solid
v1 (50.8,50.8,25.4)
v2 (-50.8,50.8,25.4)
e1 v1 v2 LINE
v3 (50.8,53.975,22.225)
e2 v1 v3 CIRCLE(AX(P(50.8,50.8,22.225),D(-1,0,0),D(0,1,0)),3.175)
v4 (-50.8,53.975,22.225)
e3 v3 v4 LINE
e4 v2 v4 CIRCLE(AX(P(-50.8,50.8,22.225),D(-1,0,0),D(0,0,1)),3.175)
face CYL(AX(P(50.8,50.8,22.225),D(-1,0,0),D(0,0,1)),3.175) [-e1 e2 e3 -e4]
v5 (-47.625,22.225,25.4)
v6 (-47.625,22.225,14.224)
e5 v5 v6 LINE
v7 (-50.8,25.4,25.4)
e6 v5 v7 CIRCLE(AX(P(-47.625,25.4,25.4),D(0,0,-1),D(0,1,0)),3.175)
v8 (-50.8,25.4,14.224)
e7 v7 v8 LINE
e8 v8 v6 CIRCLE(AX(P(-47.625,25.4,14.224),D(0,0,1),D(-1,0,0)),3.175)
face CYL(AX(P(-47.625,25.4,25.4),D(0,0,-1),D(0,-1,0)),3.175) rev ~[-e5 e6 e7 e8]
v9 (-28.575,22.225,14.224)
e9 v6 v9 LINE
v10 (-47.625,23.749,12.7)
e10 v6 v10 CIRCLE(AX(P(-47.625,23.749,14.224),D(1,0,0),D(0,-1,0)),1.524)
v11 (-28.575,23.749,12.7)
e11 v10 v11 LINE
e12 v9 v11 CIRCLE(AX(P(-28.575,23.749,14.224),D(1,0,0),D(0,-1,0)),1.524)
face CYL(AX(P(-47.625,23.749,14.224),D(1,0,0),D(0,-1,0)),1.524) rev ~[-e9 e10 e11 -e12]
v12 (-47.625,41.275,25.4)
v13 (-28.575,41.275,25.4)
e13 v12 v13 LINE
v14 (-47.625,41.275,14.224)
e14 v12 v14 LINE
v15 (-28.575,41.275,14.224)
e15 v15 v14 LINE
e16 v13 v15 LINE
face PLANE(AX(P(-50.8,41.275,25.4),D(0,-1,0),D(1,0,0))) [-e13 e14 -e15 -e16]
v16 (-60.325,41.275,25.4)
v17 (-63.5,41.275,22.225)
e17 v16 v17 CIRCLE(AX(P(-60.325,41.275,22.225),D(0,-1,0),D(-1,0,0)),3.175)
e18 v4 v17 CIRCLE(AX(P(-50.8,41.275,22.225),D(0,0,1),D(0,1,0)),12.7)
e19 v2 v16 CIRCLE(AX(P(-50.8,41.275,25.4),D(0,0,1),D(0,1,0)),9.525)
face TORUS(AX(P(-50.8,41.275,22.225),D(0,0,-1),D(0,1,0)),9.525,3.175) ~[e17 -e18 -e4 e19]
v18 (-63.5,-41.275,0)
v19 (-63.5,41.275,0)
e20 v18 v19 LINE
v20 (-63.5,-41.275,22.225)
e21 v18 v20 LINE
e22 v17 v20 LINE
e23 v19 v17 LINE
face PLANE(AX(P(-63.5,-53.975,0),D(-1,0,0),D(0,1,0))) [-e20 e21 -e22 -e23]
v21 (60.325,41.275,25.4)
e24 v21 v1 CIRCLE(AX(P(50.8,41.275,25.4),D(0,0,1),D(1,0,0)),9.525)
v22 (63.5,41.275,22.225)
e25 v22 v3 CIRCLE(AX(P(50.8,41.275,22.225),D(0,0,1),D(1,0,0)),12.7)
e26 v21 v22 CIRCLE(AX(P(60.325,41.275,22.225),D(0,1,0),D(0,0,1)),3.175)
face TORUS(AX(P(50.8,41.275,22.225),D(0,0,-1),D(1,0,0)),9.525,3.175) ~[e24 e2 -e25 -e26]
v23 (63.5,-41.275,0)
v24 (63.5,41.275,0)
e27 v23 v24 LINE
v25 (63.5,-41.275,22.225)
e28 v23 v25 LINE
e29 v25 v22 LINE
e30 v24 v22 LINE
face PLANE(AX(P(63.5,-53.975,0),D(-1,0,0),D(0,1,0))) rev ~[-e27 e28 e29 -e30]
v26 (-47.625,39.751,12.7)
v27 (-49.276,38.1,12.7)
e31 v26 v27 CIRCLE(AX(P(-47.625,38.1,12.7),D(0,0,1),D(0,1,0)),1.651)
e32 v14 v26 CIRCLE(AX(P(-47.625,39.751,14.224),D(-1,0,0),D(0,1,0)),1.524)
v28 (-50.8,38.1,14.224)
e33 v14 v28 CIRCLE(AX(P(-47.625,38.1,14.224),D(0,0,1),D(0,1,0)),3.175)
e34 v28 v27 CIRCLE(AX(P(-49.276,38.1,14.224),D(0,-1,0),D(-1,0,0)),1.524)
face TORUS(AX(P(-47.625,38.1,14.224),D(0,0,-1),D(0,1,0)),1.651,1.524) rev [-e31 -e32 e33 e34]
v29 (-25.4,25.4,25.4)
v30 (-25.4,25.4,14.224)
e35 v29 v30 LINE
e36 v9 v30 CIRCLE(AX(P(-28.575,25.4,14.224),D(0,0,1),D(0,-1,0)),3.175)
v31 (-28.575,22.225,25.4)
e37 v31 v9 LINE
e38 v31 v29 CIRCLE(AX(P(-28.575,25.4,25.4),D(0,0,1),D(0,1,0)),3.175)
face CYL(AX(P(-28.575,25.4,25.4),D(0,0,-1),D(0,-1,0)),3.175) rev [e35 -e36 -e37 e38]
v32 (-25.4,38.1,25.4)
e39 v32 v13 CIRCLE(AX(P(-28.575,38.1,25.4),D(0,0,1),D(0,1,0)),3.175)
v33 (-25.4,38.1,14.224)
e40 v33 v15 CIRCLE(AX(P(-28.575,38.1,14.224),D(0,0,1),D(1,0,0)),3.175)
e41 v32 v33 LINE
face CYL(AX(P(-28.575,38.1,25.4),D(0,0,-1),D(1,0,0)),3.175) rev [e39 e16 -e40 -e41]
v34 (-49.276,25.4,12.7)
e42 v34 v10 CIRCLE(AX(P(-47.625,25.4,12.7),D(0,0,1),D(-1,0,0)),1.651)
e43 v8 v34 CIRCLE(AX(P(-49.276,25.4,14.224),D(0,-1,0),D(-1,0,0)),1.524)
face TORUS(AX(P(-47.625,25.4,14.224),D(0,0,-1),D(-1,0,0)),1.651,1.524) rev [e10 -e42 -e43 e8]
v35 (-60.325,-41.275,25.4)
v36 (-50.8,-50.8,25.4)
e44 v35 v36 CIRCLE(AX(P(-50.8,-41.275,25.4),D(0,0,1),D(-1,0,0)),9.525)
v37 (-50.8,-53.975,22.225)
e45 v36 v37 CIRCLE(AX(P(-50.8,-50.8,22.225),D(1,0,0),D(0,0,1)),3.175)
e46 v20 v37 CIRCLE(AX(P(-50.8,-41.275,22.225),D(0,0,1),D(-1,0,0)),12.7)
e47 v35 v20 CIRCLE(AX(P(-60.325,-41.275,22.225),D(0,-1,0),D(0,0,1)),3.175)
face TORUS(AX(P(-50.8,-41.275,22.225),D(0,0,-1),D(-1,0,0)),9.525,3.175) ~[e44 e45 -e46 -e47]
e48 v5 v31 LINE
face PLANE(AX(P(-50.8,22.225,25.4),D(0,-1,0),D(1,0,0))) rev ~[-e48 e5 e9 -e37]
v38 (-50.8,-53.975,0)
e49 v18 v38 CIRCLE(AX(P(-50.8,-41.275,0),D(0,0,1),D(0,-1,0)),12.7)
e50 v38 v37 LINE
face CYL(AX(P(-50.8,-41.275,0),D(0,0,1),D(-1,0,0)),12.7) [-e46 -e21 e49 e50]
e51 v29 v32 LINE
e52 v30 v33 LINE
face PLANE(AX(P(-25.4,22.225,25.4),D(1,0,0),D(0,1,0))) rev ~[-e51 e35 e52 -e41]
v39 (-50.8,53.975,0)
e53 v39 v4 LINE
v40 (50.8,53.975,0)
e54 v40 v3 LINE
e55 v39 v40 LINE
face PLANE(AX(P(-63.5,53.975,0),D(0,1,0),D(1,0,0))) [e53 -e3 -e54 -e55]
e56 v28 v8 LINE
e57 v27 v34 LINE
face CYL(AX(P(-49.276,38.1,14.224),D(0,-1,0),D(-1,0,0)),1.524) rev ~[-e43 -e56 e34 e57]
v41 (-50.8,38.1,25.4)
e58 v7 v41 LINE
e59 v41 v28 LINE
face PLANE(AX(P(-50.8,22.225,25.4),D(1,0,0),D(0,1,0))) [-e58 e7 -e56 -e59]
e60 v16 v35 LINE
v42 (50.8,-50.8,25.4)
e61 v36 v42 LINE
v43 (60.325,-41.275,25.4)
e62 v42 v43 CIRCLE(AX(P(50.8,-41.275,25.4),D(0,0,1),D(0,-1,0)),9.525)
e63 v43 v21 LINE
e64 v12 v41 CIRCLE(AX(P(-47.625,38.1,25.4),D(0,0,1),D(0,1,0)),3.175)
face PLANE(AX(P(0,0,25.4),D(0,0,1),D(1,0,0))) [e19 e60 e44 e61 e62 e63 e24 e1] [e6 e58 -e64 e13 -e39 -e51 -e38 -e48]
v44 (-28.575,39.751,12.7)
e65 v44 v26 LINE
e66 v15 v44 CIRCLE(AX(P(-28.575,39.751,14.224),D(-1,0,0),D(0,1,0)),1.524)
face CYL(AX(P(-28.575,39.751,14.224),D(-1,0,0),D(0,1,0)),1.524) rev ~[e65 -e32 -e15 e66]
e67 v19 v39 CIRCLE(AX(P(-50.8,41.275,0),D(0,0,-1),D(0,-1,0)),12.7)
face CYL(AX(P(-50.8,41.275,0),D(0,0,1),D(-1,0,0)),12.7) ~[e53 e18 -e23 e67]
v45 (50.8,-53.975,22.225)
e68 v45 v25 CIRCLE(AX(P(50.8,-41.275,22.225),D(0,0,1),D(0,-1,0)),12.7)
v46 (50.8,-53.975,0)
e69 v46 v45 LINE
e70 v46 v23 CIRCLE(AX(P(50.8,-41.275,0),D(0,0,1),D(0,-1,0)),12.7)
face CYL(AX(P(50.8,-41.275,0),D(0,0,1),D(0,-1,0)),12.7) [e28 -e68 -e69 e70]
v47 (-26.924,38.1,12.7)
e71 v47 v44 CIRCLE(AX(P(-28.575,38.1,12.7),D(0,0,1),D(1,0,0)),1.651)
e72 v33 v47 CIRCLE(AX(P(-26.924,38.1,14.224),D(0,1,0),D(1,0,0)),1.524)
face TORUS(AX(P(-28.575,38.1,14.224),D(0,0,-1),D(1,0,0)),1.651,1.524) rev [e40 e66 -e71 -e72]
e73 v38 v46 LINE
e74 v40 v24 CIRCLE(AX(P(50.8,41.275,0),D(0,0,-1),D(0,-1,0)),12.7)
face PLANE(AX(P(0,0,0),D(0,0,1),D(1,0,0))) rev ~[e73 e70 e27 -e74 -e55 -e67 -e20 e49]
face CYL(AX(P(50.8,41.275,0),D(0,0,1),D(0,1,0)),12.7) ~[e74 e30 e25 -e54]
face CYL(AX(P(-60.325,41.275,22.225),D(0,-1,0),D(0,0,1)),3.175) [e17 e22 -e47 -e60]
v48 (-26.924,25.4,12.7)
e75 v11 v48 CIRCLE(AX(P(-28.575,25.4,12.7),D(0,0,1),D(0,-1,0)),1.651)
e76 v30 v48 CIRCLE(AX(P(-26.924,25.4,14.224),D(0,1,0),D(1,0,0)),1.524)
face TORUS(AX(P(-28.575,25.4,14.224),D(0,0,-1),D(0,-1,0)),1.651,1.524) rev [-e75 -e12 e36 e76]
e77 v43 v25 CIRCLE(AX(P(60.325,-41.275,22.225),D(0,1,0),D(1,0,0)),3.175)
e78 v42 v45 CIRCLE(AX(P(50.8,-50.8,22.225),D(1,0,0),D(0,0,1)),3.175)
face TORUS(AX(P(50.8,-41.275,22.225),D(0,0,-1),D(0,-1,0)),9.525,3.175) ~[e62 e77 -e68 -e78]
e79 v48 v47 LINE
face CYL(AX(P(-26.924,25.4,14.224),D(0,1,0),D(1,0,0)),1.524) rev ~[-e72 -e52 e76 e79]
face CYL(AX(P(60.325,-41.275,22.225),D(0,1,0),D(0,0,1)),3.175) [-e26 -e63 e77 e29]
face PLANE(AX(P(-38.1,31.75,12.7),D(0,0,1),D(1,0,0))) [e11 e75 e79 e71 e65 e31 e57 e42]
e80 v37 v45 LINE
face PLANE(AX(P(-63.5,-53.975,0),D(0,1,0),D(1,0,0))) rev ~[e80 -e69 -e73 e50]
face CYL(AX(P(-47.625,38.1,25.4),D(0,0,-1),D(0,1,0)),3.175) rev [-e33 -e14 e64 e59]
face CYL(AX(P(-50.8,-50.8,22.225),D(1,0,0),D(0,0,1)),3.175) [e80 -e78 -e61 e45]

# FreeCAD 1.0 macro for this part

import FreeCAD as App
import Part
import Sketcher
from FreeCAD import Vector
Q = App.Units.Quantity


def edges_at(feature, points):
    """Names of the edges that pass closest to the given points."""
    edges = feature.Shape.Edges
    near = lambda p: min(range(len(edges)), key=lambda i: edges[i].distToShape(Part.Vertex(*p))[0])
    return sorted({f"Edge{near(p) + 1}" for p in points})

doc = App.newDocument("Part")
body = doc.addObject("PartDesign::Body", "Body")

# Sketch on XY plane
sketch1 = doc.addObject("Sketcher::SketchObject", "Sketch")
body.addObject(sketch1)
sketch1.AttachmentSupport = (doc.XY_Plane, [""])
sketch1.MapMode = "FlatFace"
sketch1.addGeometry([
    Part.LineSegment(Vector(-64, 54, 0), Vector(-64, -54, 0)),
    Part.LineSegment(Vector(-64, -54, 0), Vector(64, -54, 0)),
    Part.LineSegment(Vector(64, -54, 0), Vector(64, 54, 0)),
    Part.LineSegment(Vector(64, 54, 0), Vector(-64, 54, 0)),
], False)
sketch1.addConstraint([
    Sketcher.Constraint("Coincident", 0, 2, 1, 1),
    Sketcher.Constraint("Coincident", 1, 2, 2, 1),
    Sketcher.Constraint("Coincident", 2, 2, 3, 1),
    Sketcher.Constraint("Coincident", 3, 2, 0, 1),
    Sketcher.Constraint("Vertical", 0),
    Sketcher.Constraint("Horizontal", 1),
    Sketcher.Constraint("Vertical", 2),
    Sketcher.Constraint("Horizontal", 3),
    Sketcher.Constraint("Symmetric", 0, 2, 2, 2, -1, 1),
    Sketcher.Constraint("DistanceX", 1, 1, 1, 2, Q("5 in")),
    Sketcher.Constraint("DistanceY", 0, 2, 0, 1, Q("4.25 in")),
])
pad1 = doc.addObject("PartDesign::Pad", "Pad")
body.addObject(pad1)
pad1.Profile = sketch1
pad1.Length = Q("1 in")

# Sketch on XY plane
sketch2 = doc.addObject("Sketcher::SketchObject", "Sketch001")
body.addObject(sketch2)
sketch2.AttachmentSupport = (doc.XY_Plane, [""])
sketch2.MapMode = "FlatFace"
sketch2.AttachmentOffset = App.Placement(Vector(0, 0, 1 * 25.4), App.Rotation())
sketch2.addGeometry([
    Part.LineSegment(Vector(-51, 41, 0), Vector(-51, 22, 0)),
    Part.LineSegment(Vector(-51, 22, 0), Vector(-25, 22, 0)),
    Part.LineSegment(Vector(-25, 22, 0), Vector(-25, 41, 0)),
    Part.LineSegment(Vector(-25, 41, 0), Vector(-51, 41, 0)),
], False)
sketch2.addConstraint([
    Sketcher.Constraint("Coincident", 0, 2, 1, 1),
    Sketcher.Constraint("Coincident", 1, 2, 2, 1),
    Sketcher.Constraint("Coincident", 2, 2, 3, 1),
    Sketcher.Constraint("Coincident", 3, 2, 0, 1),
    Sketcher.Constraint("Vertical", 0),
    Sketcher.Constraint("Horizontal", 1),
    Sketcher.Constraint("Vertical", 2),
    Sketcher.Constraint("Horizontal", 3),
    Sketcher.Constraint("DistanceX", 1, 1, 1, 2, Q("1 in")),
    Sketcher.Constraint("DistanceX", 0, 2, -1, 1, Q("2 in")),
    Sketcher.Constraint("DistanceY", 0, 2, 0, 1, Q("0.75 in")),
    Sketcher.Constraint("DistanceY", -1, 1, 0, 2, Q("0.875 in")),
])
pocket1 = doc.addObject("PartDesign::Pocket", "Pocket")
body.addObject(pocket1)
pocket1.Profile = sketch2
pocket1.Length = Q("0.5 in")
doc.recompute()

fillet = doc.addObject("PartDesign::Fillet", "Fillet")
body.addObject(fillet)
fillet.Base = (pocket1, edges_at(pocket1, [
    (-50.8, 41.275, 19.05),
    (-50.8, 22.225, 19.05),
    (-25.4, 22.225, 19.05),
    (-25.4, 41.275, 19.05),
]))
fillet.Radius = Q("0.125 in")
doc.recompute()

fillet2 = doc.addObject("PartDesign::Fillet", "Fillet001")
body.addObject(fillet2)
fillet2.Base = (fillet, edges_at(fillet, [(-38.1, 22.225, 12.7)]))
fillet2.Radius = Q("0.06 in")
doc.recompute()

fillet3 = doc.addObject("PartDesign::Fillet", "Fillet002")
body.addObject(fillet3)
fillet3.Base = (fillet2, edges_at(fillet2, [
    (63.5, -53.975, 12.7),
    (63.5, 53.975, 12.7),
    (-63.5, -53.975, 12.7),
    (-63.5, 53.975, 12.7),
]))
fillet3.Radius = Q("0.5 in")
doc.recompute()

fillet4 = doc.addObject("PartDesign::Fillet", "Fillet003")
body.addObject(fillet4)
fillet4.Base = (fillet3, edges_at(fillet3, [(0, -53.975, 25.4)]))
fillet4.Radius = Q("0.125 in")

doc.recompute()
